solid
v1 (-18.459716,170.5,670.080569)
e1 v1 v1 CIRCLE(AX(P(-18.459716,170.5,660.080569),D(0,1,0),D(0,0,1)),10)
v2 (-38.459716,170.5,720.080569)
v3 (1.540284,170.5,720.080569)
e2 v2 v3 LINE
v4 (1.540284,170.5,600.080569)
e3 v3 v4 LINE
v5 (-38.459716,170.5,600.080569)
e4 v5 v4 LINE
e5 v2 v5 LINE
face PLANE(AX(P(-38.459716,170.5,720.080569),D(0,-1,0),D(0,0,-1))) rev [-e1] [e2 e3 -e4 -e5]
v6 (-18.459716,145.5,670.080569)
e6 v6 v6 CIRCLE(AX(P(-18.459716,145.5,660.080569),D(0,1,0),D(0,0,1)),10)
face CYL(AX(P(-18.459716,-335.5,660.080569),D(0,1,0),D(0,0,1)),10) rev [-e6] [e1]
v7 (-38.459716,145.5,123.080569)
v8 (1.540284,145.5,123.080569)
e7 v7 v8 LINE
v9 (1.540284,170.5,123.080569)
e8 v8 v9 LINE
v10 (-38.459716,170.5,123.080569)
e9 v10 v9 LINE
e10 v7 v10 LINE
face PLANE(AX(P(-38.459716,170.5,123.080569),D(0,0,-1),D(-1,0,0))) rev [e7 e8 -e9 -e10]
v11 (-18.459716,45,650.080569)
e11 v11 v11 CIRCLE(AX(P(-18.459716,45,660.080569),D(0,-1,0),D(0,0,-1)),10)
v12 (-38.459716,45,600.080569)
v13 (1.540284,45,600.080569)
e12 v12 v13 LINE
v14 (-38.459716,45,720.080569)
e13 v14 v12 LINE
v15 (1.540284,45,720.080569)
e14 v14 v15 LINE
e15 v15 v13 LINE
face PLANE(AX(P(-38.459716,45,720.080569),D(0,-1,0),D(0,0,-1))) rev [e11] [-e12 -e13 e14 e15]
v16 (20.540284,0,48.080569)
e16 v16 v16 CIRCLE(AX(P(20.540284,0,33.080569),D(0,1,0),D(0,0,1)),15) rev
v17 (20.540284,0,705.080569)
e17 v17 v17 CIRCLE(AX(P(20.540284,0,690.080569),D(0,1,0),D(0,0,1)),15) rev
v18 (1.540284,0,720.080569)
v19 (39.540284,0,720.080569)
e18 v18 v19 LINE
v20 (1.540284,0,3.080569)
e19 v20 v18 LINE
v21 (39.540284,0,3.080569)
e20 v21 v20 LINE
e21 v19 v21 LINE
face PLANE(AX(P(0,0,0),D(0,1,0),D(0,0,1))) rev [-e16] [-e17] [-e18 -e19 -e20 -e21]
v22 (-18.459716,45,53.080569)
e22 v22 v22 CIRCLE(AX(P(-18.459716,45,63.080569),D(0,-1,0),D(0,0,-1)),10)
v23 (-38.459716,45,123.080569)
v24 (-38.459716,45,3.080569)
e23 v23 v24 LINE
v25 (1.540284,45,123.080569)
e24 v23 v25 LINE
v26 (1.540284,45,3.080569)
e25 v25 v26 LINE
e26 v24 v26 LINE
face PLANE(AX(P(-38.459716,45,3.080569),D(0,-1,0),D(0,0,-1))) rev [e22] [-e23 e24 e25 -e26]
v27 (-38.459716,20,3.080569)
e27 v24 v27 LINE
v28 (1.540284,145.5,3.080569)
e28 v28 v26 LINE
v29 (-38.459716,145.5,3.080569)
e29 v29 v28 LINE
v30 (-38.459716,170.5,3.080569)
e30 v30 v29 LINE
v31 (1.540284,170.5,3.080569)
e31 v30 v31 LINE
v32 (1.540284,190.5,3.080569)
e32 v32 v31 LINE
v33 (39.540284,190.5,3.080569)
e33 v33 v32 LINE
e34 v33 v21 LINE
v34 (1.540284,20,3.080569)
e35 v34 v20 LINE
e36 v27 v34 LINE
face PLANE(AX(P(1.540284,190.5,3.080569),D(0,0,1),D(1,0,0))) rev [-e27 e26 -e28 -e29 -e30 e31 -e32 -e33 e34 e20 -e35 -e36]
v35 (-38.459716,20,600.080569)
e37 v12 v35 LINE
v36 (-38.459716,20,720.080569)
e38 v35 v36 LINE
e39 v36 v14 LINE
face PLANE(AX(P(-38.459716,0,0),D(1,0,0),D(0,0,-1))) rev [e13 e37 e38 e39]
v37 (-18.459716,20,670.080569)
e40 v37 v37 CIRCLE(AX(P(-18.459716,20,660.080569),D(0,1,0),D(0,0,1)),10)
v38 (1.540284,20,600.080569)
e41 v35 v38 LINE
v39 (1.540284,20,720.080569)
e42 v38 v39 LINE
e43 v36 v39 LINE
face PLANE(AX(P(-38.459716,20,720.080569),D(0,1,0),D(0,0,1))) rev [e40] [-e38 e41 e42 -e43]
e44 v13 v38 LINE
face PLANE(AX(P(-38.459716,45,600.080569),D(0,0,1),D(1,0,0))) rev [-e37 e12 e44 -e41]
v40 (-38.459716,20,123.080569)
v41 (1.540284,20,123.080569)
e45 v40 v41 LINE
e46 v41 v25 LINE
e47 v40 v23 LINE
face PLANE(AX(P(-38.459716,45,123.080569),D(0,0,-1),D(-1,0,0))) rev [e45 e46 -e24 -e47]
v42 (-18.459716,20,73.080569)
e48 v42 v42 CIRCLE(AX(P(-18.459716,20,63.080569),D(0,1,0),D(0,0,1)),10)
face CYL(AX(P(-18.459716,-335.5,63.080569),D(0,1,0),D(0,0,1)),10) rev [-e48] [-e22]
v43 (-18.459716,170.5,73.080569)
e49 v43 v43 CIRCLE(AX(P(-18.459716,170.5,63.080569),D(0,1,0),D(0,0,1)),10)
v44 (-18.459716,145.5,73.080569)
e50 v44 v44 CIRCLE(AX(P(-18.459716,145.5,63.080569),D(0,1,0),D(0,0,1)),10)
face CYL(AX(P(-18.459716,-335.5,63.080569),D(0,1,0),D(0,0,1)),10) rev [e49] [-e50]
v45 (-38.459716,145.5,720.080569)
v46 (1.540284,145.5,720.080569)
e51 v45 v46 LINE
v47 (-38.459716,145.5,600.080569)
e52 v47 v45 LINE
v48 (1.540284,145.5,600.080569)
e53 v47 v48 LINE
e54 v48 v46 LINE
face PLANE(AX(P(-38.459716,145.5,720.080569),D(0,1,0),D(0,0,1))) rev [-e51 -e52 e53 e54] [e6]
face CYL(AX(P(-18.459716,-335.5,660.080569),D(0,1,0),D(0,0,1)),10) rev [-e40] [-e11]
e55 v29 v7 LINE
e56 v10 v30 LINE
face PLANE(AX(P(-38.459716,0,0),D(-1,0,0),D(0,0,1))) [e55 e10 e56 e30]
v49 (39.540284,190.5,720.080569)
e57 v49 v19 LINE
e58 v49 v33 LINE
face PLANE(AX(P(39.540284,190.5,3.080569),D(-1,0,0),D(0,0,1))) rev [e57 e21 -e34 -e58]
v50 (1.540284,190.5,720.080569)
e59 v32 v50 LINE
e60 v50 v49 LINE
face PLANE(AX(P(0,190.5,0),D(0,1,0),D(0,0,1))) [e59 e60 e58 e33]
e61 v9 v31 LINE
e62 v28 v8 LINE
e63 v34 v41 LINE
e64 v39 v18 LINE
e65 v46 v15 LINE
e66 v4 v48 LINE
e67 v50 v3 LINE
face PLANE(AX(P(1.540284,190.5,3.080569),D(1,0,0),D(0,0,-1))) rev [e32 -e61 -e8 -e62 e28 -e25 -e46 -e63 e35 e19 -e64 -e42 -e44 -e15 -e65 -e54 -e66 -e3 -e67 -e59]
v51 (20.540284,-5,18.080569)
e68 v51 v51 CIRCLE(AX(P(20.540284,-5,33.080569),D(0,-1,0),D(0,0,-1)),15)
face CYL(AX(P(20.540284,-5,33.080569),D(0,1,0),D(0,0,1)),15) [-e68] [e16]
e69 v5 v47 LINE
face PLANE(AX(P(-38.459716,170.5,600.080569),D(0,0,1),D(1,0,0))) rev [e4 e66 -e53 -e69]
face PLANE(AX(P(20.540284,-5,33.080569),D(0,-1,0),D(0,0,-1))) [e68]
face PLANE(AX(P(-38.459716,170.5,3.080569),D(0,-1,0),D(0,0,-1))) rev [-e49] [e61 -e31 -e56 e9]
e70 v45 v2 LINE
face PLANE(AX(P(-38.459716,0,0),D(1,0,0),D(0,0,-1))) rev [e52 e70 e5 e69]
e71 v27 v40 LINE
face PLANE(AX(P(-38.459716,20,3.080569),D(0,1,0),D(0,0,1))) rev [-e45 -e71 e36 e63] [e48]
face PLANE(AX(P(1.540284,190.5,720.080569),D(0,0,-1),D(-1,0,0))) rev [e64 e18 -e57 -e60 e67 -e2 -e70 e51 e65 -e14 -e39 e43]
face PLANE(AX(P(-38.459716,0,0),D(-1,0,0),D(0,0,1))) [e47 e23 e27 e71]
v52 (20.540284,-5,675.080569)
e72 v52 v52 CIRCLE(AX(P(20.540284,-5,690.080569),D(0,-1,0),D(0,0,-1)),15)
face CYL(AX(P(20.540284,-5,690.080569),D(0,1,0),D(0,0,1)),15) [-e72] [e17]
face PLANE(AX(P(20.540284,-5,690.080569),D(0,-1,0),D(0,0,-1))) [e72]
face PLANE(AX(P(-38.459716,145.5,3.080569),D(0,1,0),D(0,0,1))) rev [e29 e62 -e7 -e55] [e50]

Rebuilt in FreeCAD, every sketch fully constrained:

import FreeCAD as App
import Part
import Sketcher
from FreeCAD import Vector
Q = App.Units.Quantity

doc = App.newDocument("Part")
body = doc.addObject("PartDesign::Body", "Body")

sketch1 = doc.addObject("Sketcher::SketchObject", "Sketch")
body.addObject(sketch1)
sketch1.AttachmentSupport = (doc.XZ_Plane, [""])
sketch1.MapMode = "FlatFace"
sketch1.addGeometry([
    Part.LineSegment(Vector(1.540284, 3.080569, 0), Vector(1.540284, 720.080569, 0)),
    Part.LineSegment(Vector(1.540284, 720.080569, 0), Vector(39.540284, 720.080569, 0)),
    Part.LineSegment(Vector(39.540284, 720.080569, 0), Vector(39.540284, 3.080569, 0)),
    Part.LineSegment(Vector(39.540284, 3.080569, 0), Vector(1.540284, 3.080569, 0)),
], False)
sketch1.addConstraint([
    Sketcher.Constraint("Coincident", 0, 2, 1, 1),
    Sketcher.Constraint("Coincident", 1, 2, 2, 1),
    Sketcher.Constraint("Coincident", 2, 2, 3, 1),
    Sketcher.Constraint("Coincident", 3, 2, 0, 1),
    Sketcher.Constraint("Vertical", 0),
    Sketcher.Constraint("Horizontal", 1),
    Sketcher.Constraint("Vertical", 2),
    Sketcher.Constraint("Horizontal", 3),
    Sketcher.Constraint("DistanceX", 1, 1, 1, 2, Q("38 mm")),
    Sketcher.Constraint("DistanceY", 0, 1, 0, 2, Q("717 mm")),
    Sketcher.Constraint("DistanceY", -1, 1, 0, 2, Q("720.080569 mm")),
    Sketcher.Constraint("DistanceX", -1, 1, 0, 2, Q("1.540284 mm")),
])
pad1 = doc.addObject("PartDesign::Pad", "Pad")
body.addObject(pad1)
pad1.Profile = sketch1
pad1.Length = 190.5
pad1.Reversed = True

sketch2 = doc.addObject("Sketcher::SketchObject", "Sketch001")
body.addObject(sketch2)
sketch2.AttachmentSupport = (doc.YZ_Plane, [""])
sketch2.MapMode = "FlatFace"
sketch2.AttachmentOffset = App.Placement(Vector(0, 0, 1.540284), App.Rotation())
sketch2.addGeometry([
    Part.LineSegment(Vector(170.5, 3.080569, 0), Vector(145.5, 3.080569, 0)),
    Part.LineSegment(Vector(145.5, 3.080569, 0), Vector(145.5, 123.080569, 0)),
    Part.LineSegment(Vector(145.5, 123.080569, 0), Vector(170.5, 123.080569, 0)),
    Part.LineSegment(Vector(170.5, 123.080569, 0), Vector(170.5, 3.080569, 0)),
    Part.LineSegment(Vector(45, 3.080569, 0), Vector(20, 3.080569, 0)),
    Part.LineSegment(Vector(20, 3.080569, 0), Vector(20, 123.080569, 0)),
    Part.LineSegment(Vector(20, 123.080569, 0), Vector(45, 123.080569, 0)),
    Part.LineSegment(Vector(45, 123.080569, 0), Vector(45, 3.080569, 0)),
    Part.LineSegment(Vector(45, 600.080569, 0), Vector(20, 600.080569, 0)),
    Part.LineSegment(Vector(20, 600.080569, 0), Vector(20, 720.080569, 0)),
    Part.LineSegment(Vector(20, 720.080569, 0), Vector(45, 720.080569, 0)),
    Part.LineSegment(Vector(45, 720.080569, 0), Vector(45, 600.080569, 0)),
    Part.LineSegment(Vector(170.5, 600.080569, 0), Vector(145.5, 600.080569, 0)),
    Part.LineSegment(Vector(145.5, 600.080569, 0), Vector(145.5, 720.080569, 0)),
    Part.LineSegment(Vector(145.5, 720.080569, 0), Vector(170.5, 720.080569, 0)),
    Part.LineSegment(Vector(170.5, 720.080569, 0), Vector(170.5, 600.080569, 0)),
], False)
sketch2.addConstraint([
    Sketcher.Constraint("Coincident", 0, 2, 1, 1),
    Sketcher.Constraint("Coincident", 1, 2, 2, 1),
    Sketcher.Constraint("Coincident", 2, 2, 3, 1),
    Sketcher.Constraint("Coincident", 3, 2, 0, 1),
    Sketcher.Constraint("Coincident", 4, 2, 5, 1),
    Sketcher.Constraint("Coincident", 5, 2, 6, 1),
    Sketcher.Constraint("Coincident", 6, 2, 7, 1),
    Sketcher.Constraint("Coincident", 7, 2, 4, 1),
    Sketcher.Constraint("Coincident", 8, 2, 9, 1),
    Sketcher.Constraint("Coincident", 9, 2, 10, 1),
    Sketcher.Constraint("Coincident", 10, 2, 11, 1),
    Sketcher.Constraint("Coincident", 11, 2, 8, 1),
    Sketcher.Constraint("Coincident", 12, 2, 13, 1),
    Sketcher.Constraint("Coincident", 13, 2, 14, 1),
    Sketcher.Constraint("Coincident", 14, 2, 15, 1),
    Sketcher.Constraint("Coincident", 15, 2, 12, 1),
    Sketcher.Constraint("Horizontal", 0),
    Sketcher.Constraint("Vertical", 1),
    Sketcher.Constraint("Horizontal", 2),
    Sketcher.Constraint("Vertical", 3),
    Sketcher.Constraint("Horizontal", 4),
    Sketcher.Constraint("Vertical", 5),
    Sketcher.Constraint("Horizontal", 6),
    Sketcher.Constraint("Vertical", 7),
    Sketcher.Constraint("Horizontal", 8),
    Sketcher.Constraint("Vertical", 9),
    Sketcher.Constraint("Horizontal", 10),
    Sketcher.Constraint("Vertical", 11),
    Sketcher.Constraint("Horizontal", 12),
    Sketcher.Constraint("Vertical", 13),
    Sketcher.Constraint("Horizontal", 14),
    Sketcher.Constraint("Vertical", 15),
    Sketcher.Constraint("Horizontal", 3, 2, 4, 2),
    Sketcher.Constraint("Horizontal", 2, 2, 5, 2),
    Sketcher.Constraint("Horizontal", 11, 2, 12, 2),
    Sketcher.Constraint("Horizontal", 10, 2, 13, 2),
    Sketcher.Constraint("Vertical", 5, 2, 8, 2),
    Sketcher.Constraint("Vertical", 7, 2, 10, 2),
    Sketcher.Constraint("Vertical", 1, 2, 12, 2),
    Sketcher.Constraint("Vertical", 3, 2, 14, 2),
    Sketcher.Constraint("Equal", 2, 4),
    Sketcher.Constraint("Equal", 7, 9),
    Sketcher.Constraint("DistanceX", 0, 2, 0, 1, Q("25 mm")),
    Sketcher.Constraint("DistanceY", 1, 1, 1, 2, Q("120 mm")),
    Sketcher.Constraint("DistanceX", -1, 1, 4, 2, Q("20 mm")),
    Sketcher.Constraint("DistanceY", 5, 2, 8, 2, Q("477 mm")),
    Sketcher.Constraint("DistanceX", -1, 1, 0, 2, Q("145.5 mm")),
    Sketcher.Constraint("DistanceY", -1, 1, 0, 2, Q("3.080569 mm")),
])
pad2 = doc.addObject("PartDesign::Pad", "Pad001")
body.addObject(pad2)
pad2.Profile = sketch2
pad2.Length = 40
pad2.Reversed = True

sketch3 = doc.addObject("Sketcher::SketchObject", "Sketch002")
body.addObject(sketch3)
sketch3.AttachmentSupport = (doc.XZ_Plane, [""])
sketch3.MapMode = "FlatFace"
sketch3.AttachmentOffset = App.Placement(Vector(0, 0, -170.5), App.Rotation())
sketch3.addGeometry([
    Part.Circle(Vector(-18.459716, 63.080569, 0), Vector(0, 0, 1), 10),
    Part.Circle(Vector(-18.459716, 660.080569, 0), Vector(0, 0, 1), 10),
], False)
sketch3.addConstraint([
    Sketcher.Constraint("Equal", 0, 1),
    Sketcher.Constraint("Vertical", 0, 3, 1, 3),
    Sketcher.Constraint("Diameter", 0, Q("20 mm")),
    Sketcher.Constraint("DistanceY", 0, 3, 1, 3, Q("597 mm")),
    Sketcher.Constraint("DistanceY", -1, 1, 0, 3, Q("63.080569 mm")),
    Sketcher.Constraint("DistanceX", 0, 3, -1, 1, Q("18.459716 mm")),
])
pocket1 = doc.addObject("PartDesign::Pocket", "Pocket")
body.addObject(pocket1)
pocket1.Profile = sketch3
pocket1.Length = 506
pocket1.Reversed = True

sketch4 = doc.addObject("Sketcher::SketchObject", "Sketch003")
body.addObject(sketch4)
sketch4.AttachmentSupport = (doc.XZ_Plane, [""])
sketch4.MapMode = "FlatFace"
sketch4.addGeometry([
    Part.Circle(Vector(20.540284, 690.080569, 0), Vector(0, 0, 1), 15),
    Part.Circle(Vector(20.540284, 33.080569, 0), Vector(0, 0, 1), 15),
], False)
sketch4.addConstraint([
    Sketcher.Constraint("Equal", 0, 1),
    Sketcher.Constraint("Vertical", 0, 3, 1, 3),
    Sketcher.Constraint("Diameter", 0, Q("30 mm")),
    Sketcher.Constraint("DistanceY", 1, 3, 0, 3, Q("657 mm")),
    Sketcher.Constraint("DistanceY", -1, 1, 0, 3, Q("690.080569 mm")),
    Sketcher.Constraint("DistanceX", -1, 1, 0, 3, Q("20.540284 mm")),
])
pad3 = doc.addObject("PartDesign::Pad", "Pad002")
body.addObject(pad3)
pad3.Profile = sketch4
pad3.Length = 5

doc.recompute()
